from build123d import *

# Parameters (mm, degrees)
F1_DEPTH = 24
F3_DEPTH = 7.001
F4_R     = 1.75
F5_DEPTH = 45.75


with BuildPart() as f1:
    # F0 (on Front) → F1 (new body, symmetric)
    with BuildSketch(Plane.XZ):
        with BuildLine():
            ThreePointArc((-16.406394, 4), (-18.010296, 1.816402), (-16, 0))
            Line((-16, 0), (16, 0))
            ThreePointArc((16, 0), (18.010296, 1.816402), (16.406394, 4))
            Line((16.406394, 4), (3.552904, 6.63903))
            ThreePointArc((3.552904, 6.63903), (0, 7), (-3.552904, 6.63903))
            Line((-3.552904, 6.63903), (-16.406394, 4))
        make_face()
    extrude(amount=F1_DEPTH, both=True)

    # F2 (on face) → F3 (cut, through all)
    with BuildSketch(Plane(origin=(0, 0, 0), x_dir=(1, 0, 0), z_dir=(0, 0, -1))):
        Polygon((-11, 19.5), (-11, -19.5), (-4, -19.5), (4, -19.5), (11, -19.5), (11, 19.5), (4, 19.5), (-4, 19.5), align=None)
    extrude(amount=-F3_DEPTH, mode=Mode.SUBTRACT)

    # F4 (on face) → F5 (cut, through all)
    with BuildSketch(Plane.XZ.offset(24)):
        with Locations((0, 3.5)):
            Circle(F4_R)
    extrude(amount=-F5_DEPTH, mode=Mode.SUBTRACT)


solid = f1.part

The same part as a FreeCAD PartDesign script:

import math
import FreeCAD as App
import Part
import Sketcher


def add_polygon(sketch, points):
    """Adds a closed chain of lines whose ends are joined by coincident constraints."""
    first, n = sketch.GeometryCount, len(points)
    for a, b in zip(points, points[1:] + points[:1]):
        sketch.addGeometry(Part.LineSegment(App.Vector(*a, 0), App.Vector(*b, 0)), False)
    for i in range(n):
        sketch.addConstraint(Sketcher.Constraint("Coincident", first + i, 2, first + (i + 1) % n, 1))

doc = App.newDocument("Part")
body = doc.addObject("PartDesign::Body", "Body")

sketch1 = body.newObject("Sketcher::SketchObject", "Sketch")
sketch1.AttachmentSupport = (doc.getObject("XZ_Plane"), [""])
sketch1.MapMode = "FlatFace"
sketch1.addGeometry(Part.ArcOfCircle(Part.Circle(App.Vector(-16, 2.020644, 0), App.Vector(0, 0, 1), 2.020644), math.radians(101.602512), math.radians(270.000006)), False)
sketch1.addGeometry(Part.LineSegment(App.Vector(-16, 0, 0), App.Vector(16, 0, 0)), False)
sketch1.addGeometry(Part.ArcOfCircle(Part.Circle(App.Vector(16, 2.020644, 0), App.Vector(0, 0, 1), 2.020644), math.radians(-90.000006), math.radians(78.397488)), False)
sketch1.addGeometry(Part.LineSegment(App.Vector(16.406394, 4, 0), App.Vector(3.552904, 6.63903, 0)), False)
sketch1.addGeometry(Part.ArcOfCircle(Part.Circle(App.Vector(0, -10.665493, 0), App.Vector(0, 0, 1), 17.665493), math.radians(78.397473), math.radians(101.602527)), False)
sketch1.addGeometry(Part.LineSegment(App.Vector(-3.552904, 6.63903, 0), App.Vector(-16.406394, 4, 0)), False)
sketch1.addConstraint(Sketcher.Constraint("Coincident", 0, 2, 1, 1))
sketch1.addConstraint(Sketcher.Constraint("Coincident", 1, 2, 2, 1))
sketch1.addConstraint(Sketcher.Constraint("Coincident", 2, 2, 3, 1))
sketch1.addConstraint(Sketcher.Constraint("Coincident", 3, 2, 4, 1))
sketch1.addConstraint(Sketcher.Constraint("Coincident", 4, 2, 5, 1))
sketch1.addConstraint(Sketcher.Constraint("Coincident", 5, 2, 0, 1))
sketch1.addConstraint(Sketcher.Constraint("Horizontal", 1))
sketch1.addConstraint(Sketcher.Constraint("PointOnObject", 4, 3, -2))
sketch1.addConstraint(Sketcher.Constraint("PointOnObject", 0, 2, -1))
sketch1.addConstraint(Sketcher.Constraint("DistanceX", 1, 1, 1, 2, 32.0))
sketch1.addConstraint(Sketcher.Constraint("DistanceX", 0, 3, -1, 1, 16.0))
sketch1.addConstraint(Sketcher.Constraint("DistanceX", -1, 1, 2, 3, 16.0))
sketch1.addConstraint(Sketcher.Constraint("DistanceX", 0, 2, -1, 1, 16.0))
sketch1.addConstraint(Sketcher.Constraint("DistanceY", -1, 1, 2, 2, 4.0))
sketch1.addConstraint(Sketcher.Constraint("DistanceY", -1, 1, 5, 2, 4.0))
sketch1.addConstraint(Sketcher.Constraint("Radius", 0, 2.020644))
sketch1.addConstraint(Sketcher.Constraint("Radius", 2, 2.020644))
sketch1.addConstraint(Sketcher.Constraint("Radius", 4, 17.665493))
sketch1.addConstraint(Sketcher.Constraint("Distance", 3, 13.121611))
sketch1.addConstraint(Sketcher.Constraint("Distance", 5, 13.121611))
sketch1.addConstraint(Sketcher.Constraint("DistanceY", -1, 1, 3, 2, 6.63903))
pad1 = body.newObject("PartDesign::Pad", "Pad")
pad1.Profile = sketch1
pad1.Length = 48
pad1.Midplane = True

sketch2 = body.newObject("Sketcher::SketchObject", "Sketch001")
sketch2.AttachmentSupport = (doc.getObject("XY_Plane"), [""])
sketch2.MapMode = "FlatFace"
add_polygon(sketch2, [(-11, -20), (-11, 20), (11, 20), (11, -20)])
sketch2.addConstraint(Sketcher.Constraint("Vertical", 0))
sketch2.addConstraint(Sketcher.Constraint("Horizontal", 1))
sketch2.addConstraint(Sketcher.Constraint("Vertical", 2))
sketch2.addConstraint(Sketcher.Constraint("Horizontal", 3))
sketch2.addConstraint(Sketcher.Constraint("Symmetric", 0, 2, 2, 2, -1, 1))
sketch2.addConstraint(Sketcher.Constraint("DistanceX", 1, 1, 1, 2, 22.0))
sketch2.addConstraint(Sketcher.Constraint("DistanceY", 0, 1, 0, 2, 39.0))
pocket1 = body.newObject("PartDesign::Pocket", "Pocket")
pocket1.Profile = sketch2
pocket1.Type = "ThroughAll"
pocket1.Reversed = True

sketch3 = body.newObject("Sketcher::SketchObject", "Sketch002")
sketch3.AttachmentSupport = (doc.getObject("XZ_Plane"), [""])
sketch3.MapMode = "FlatFace"
sketch3.AttachmentOffset = App.Placement(App.Vector(0, 0, 24), App.Rotation())
sketch3.addGeometry(Part.Circle(App.Vector(0, 3.5, 0), App.Vector(0, 0, 1), 1.8), False)
sketch3.addConstraint(Sketcher.Constraint("PointOnObject", 0, 3, -2))
sketch3.addConstraint(Sketcher.Constraint("Diameter", 0, 3.5))
sketch3.addConstraint(Sketcher.Constraint("DistanceY", -1, 1, 0, 3, 3.5))
pocket2 = body.newObject("PartDesign::Pocket", "Pocket001")
pocket2.Profile = sketch3
pocket2.Length = 45.75

doc.recompute()
